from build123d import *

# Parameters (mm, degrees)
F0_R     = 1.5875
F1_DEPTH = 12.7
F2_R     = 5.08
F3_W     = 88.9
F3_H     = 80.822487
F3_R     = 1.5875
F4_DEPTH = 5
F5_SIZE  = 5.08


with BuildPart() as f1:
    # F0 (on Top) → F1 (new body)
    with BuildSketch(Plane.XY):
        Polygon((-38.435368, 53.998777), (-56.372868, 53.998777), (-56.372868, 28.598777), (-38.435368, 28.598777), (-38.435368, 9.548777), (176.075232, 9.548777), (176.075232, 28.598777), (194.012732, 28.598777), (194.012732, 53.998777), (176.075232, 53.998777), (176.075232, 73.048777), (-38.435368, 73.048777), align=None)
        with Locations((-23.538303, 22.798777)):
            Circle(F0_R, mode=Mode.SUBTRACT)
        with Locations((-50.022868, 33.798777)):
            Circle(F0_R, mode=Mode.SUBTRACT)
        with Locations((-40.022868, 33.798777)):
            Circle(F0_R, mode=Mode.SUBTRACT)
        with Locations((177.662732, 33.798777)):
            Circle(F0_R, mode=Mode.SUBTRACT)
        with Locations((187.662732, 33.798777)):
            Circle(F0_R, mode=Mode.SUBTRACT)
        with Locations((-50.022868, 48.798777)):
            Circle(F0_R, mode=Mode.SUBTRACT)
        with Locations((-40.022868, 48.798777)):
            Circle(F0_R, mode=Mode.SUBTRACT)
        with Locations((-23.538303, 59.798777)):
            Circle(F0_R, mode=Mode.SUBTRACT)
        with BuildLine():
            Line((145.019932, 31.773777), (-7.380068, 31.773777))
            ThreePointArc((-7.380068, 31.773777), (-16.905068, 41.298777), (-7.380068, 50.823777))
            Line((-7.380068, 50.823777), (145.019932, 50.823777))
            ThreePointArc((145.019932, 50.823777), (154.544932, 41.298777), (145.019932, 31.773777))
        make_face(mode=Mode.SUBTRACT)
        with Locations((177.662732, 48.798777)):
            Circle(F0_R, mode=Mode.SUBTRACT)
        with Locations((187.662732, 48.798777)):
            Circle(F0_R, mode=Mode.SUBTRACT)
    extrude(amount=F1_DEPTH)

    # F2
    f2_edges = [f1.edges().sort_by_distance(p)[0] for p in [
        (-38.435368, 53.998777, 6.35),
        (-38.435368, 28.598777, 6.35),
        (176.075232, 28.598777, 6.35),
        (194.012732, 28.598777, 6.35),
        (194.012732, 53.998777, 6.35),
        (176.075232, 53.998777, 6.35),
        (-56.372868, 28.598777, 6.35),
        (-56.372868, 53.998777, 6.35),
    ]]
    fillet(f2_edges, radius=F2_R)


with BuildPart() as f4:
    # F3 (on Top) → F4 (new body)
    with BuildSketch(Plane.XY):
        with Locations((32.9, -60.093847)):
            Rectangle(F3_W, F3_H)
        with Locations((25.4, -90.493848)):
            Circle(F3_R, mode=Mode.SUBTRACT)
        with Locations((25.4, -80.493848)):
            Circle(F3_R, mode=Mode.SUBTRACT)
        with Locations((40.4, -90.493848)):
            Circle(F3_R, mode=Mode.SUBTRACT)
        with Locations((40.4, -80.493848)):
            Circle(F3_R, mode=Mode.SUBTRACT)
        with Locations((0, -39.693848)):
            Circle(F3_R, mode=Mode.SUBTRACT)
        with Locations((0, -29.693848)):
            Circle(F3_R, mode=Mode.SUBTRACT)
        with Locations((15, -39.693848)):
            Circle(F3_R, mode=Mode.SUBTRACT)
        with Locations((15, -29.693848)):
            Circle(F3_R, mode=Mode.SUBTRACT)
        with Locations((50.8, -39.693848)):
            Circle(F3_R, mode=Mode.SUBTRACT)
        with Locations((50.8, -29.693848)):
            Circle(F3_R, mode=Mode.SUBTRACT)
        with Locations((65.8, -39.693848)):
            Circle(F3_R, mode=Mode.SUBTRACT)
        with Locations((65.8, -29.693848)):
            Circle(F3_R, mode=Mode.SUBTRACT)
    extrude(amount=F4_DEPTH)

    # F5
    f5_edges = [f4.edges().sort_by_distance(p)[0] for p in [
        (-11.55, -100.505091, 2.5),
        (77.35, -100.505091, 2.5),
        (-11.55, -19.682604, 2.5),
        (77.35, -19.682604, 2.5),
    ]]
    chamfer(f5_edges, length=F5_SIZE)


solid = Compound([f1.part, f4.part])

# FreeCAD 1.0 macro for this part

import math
import FreeCAD as App
import Part
import Sketcher
from FreeCAD import Vector
Q = App.Units.Quantity


def edges_at(feature, points):
    """Names of the edges that pass closest to the given points."""
    edges = feature.Shape.Edges
    near = lambda p: min(range(len(edges)), key=lambda i: edges[i].distToShape(Part.Vertex(*p))[0])
    return sorted({f"Edge{near(p) + 1}" for p in points})

doc = App.newDocument("Part")
body = doc.addObject("PartDesign::Body", "Body")

sketch1 = body.newObject("Sketcher::SketchObject", "Sketch")
sketch1.AttachmentSupport = (doc.getObject("XY_Plane"), [""])
sketch1.MapMode = "FlatFace"
sketch1.addGeometry([
    Part.LineSegment(Vector(-38.4, 54, 0), Vector(-56.4, 54, 0)),
    Part.LineSegment(Vector(-56.4, 54, 0), Vector(-56.4, 28.6, 0)),
    Part.LineSegment(Vector(-56.4, 28.6, 0), Vector(-38.4, 28.6, 0)),
    Part.LineSegment(Vector(-38.4, 28.6, 0), Vector(-38.4, 9.5, 0)),
    Part.LineSegment(Vector(-38.4, 9.5, 0), Vector(176.1, 9.5, 0)),
    Part.LineSegment(Vector(176.1, 9.5, 0), Vector(176.1, 28.6, 0)),
    Part.LineSegment(Vector(176.1, 28.6, 0), Vector(194, 28.6, 0)),
    Part.LineSegment(Vector(194, 28.6, 0), Vector(194, 54, 0)),
    Part.LineSegment(Vector(194, 54, 0), Vector(176.1, 54, 0)),
    Part.LineSegment(Vector(176.1, 54, 0), Vector(176.1, 73, 0)),
    Part.LineSegment(Vector(176.1, 73, 0), Vector(-38.4, 73, 0)),
    Part.LineSegment(Vector(-38.4, 73, 0), Vector(-38.4, 54, 0)),
    Part.Circle(Vector(-23.5, 22.8, 0), Vector(0, 0, 1), 1.6),
    Part.Circle(Vector(-50, 33.8, 0), Vector(0, 0, 1), 1.6),
    Part.Circle(Vector(-40, 33.8, 0), Vector(0, 0, 1), 1.6),
    Part.Circle(Vector(177.7, 33.8, 0), Vector(0, 0, 1), 1.6),
    Part.Circle(Vector(187.7, 33.8, 0), Vector(0, 0, 1), 1.6),
    Part.Circle(Vector(-50, 48.8, 0), Vector(0, 0, 1), 1.6),
    Part.Circle(Vector(-40, 48.8, 0), Vector(0, 0, 1), 1.6),
    Part.ArcOfCircle(Part.Circle(Vector(145, 41.3, 0), Vector(0, 0, 1), 9.5), math.radians(-90), math.radians(90)),
    Part.LineSegment(Vector(145, 31.8, 0), Vector(-7.4, 31.8, 0)),
    Part.ArcOfCircle(Part.Circle(Vector(-7.4, 41.3, 0), Vector(0, 0, 1), 9.5), math.radians(90), math.radians(270)),
    Part.LineSegment(Vector(-7.4, 50.8, 0), Vector(145, 50.8, 0)),
    Part.Circle(Vector(-23.5, 59.8, 0), Vector(0, 0, 1), 1.6),
    Part.Circle(Vector(177.7, 48.8, 0), Vector(0, 0, 1), 1.6),
    Part.Circle(Vector(187.7, 48.8, 0), Vector(0, 0, 1), 1.6),
], False)
sketch1.addConstraint([
    Sketcher.Constraint("Coincident", 0, 2, 1, 1),
    Sketcher.Constraint("Coincident", 1, 2, 2, 1),
    Sketcher.Constraint("Coincident", 2, 2, 3, 1),
    Sketcher.Constraint("Coincident", 3, 2, 4, 1),
    Sketcher.Constraint("Coincident", 4, 2, 5, 1),
    Sketcher.Constraint("Coincident", 5, 2, 6, 1),
    Sketcher.Constraint("Coincident", 6, 2, 7, 1),
    Sketcher.Constraint("Coincident", 7, 2, 8, 1),
    Sketcher.Constraint("Coincident", 8, 2, 9, 1),
    Sketcher.Constraint("Coincident", 9, 2, 10, 1),
    Sketcher.Constraint("Coincident", 10, 2, 11, 1),
    Sketcher.Constraint("Coincident", 11, 2, 0, 1),
    Sketcher.Constraint("Tangent", 19, 1, 20, 1),
    Sketcher.Constraint("Tangent", 20, 2, 21, 2),
    Sketcher.Constraint("Tangent", 21, 1, 22, 1),
    Sketcher.Constraint("Tangent", 22, 2, 19, 2),
    Sketcher.Constraint("Horizontal", 0),
    Sketcher.Constraint("Vertical", 1),
    Sketcher.Constraint("Horizontal", 2),
    Sketcher.Constraint("Vertical", 3),
    Sketcher.Constraint("Horizontal", 4),
    Sketcher.Constraint("Vertical", 5),
    Sketcher.Constraint("Horizontal", 6),
    Sketcher.Constraint("Vertical", 7),
    Sketcher.Constraint("Horizontal", 8),
    Sketcher.Constraint("Vertical", 9),
    Sketcher.Constraint("Horizontal", 10),
    Sketcher.Constraint("Vertical", 11),
    Sketcher.Constraint("Horizontal", 20),
    Sketcher.Constraint("Horizontal", 22),
    Sketcher.Constraint("Equal", 12, 13),
    Sketcher.Constraint("Equal", 13, 14),
    Sketcher.Constraint("Equal", 14, 15),
    Sketcher.Constraint("Equal", 15, 16),
    Sketcher.Constraint("Equal", 16, 17),
    Sketcher.Constraint("Equal", 17, 18),
    Sketcher.Constraint("Equal", 18, 23),
    Sketcher.Constraint("Equal", 23, 24),
    Sketcher.Constraint("Equal", 24, 25),
    Sketcher.Constraint("Horizontal", 13, 3, 14, 3),
    Sketcher.Constraint("Horizontal", 14, 3, 15, 3),
    Sketcher.Constraint("Horizontal", 15, 3, 16, 3),
    Sketcher.Constraint("Horizontal", 17, 3, 18, 3),
    Sketcher.Constraint("Horizontal", 18, 3, 24, 3),
    Sketcher.Constraint("Horizontal", 24, 3, 25, 3),
    Sketcher.Constraint("Horizontal", 2, 2, 5, 2),
    Sketcher.Constraint("Horizontal", 0, 2, 7, 2),
    Sketcher.Constraint("Vertical", 13, 3, 17, 3),
    Sketcher.Constraint("Vertical", 14, 3, 18, 3),
    Sketcher.Constraint("Vertical", 12, 3, 23, 3),
    Sketcher.Constraint("Vertical", 15, 3, 24, 3),
    Sketcher.Constraint("Vertical", 16, 3, 25, 3),
    Sketcher.Constraint("Vertical", 5, 2, 8, 2),
    Sketcher.Constraint("Vertical", 3, 2, 10, 2),
    Sketcher.Constraint("Equal", 2, 6),
    Sketcher.Constraint("Equal", 5, 9),
    Sketcher.Constraint("DistanceX", 20, 2, 20, 1, Q("6 in")),
    Sketcher.Constraint("DistanceY", 1, 2, 1, 1, Q("1 in")),
    Sketcher.Constraint("Diameter", 12, Q("0.125 in")),
    Sketcher.Constraint("Radius", 19, Q("0.375 in")),
    Sketcher.Constraint("DistanceY", 3, 2, 3, 1, Q("0.75 in")),
    Sketcher.Constraint("DistanceX", 0, 2, 17, 3, Q("0.25 in")),
    Sketcher.Constraint("DistanceY", 4, 2, 19, 3, Q("1.25 in")),
    Sketcher.Constraint("DistanceX", 16, 3, 6, 2, Q("0.25 in")),
    Sketcher.Constraint("DistanceX", 13, 3, 15, 3, Q("8.964 in")),
    Sketcher.Constraint("DistanceX", 14, 3, 16, 3, Q("8.964 in")),
    Sketcher.Constraint("DistanceX", 14, 3, 2, 2, Q("0.0625 in")),
    Sketcher.Constraint("DistanceX", 0, 2, 0, 1, 17.9375),
    Sketcher.Constraint("DistanceY", 12, 3, 13, 3, 11.0),
    Sketcher.Constraint("DistanceY", 13, 3, 17, 3, 15.0),
    Sketcher.Constraint("DistanceX", 19, 3, 15, 3, 32.6428),
    Sketcher.Constraint("DistanceY", 15, 3, 19, 3, 7.5),
    Sketcher.Constraint("DistanceY", 18, 3, 23, 3, 11.0),
    Sketcher.Constraint("DistanceX", 13, 3, -1, 1, 50.022868),
    Sketcher.Constraint("DistanceX", 12, 3, -1, 1, 23.538303),
    Sketcher.Constraint("DistanceY", -1, 1, 12, 3, 22.798777),
])
pad1 = body.newObject("PartDesign::Pad", "Pad")
pad1.Profile = sketch1
pad1.Length = Q("0.5 in")
doc.recompute()

fillet = body.newObject("PartDesign::Fillet", "Fillet")
fillet.Base = (pad1, edges_at(pad1, [
    (-38.435, 53.999, 6.35),
    (-38.435, 28.599, 6.35),
    (176.075, 28.599, 6.35),
    (194.013, 28.599, 6.35),
    (194.013, 53.999, 6.35),
    (176.075, 53.999, 6.35),
    (-56.373, 28.599, 6.35),
    (-56.373, 53.999, 6.35),
]))
fillet.Radius = Q("0.2 in")
body2 = doc.addObject("PartDesign::Body", "Body001")

sketch2 = body2.newObject("Sketcher::SketchObject", "Sketch001")
sketch2.AttachmentSupport = (doc.getObject("XY_Plane001"), [""])
sketch2.MapMode = "FlatFace"
sketch2.addGeometry([
    Part.LineSegment(Vector(-11.6, -19.7, 0), Vector(-11.6, -100.5, 0)),
    Part.LineSegment(Vector(-11.6, -100.5, 0), Vector(77.3, -100.5, 0)),
    Part.LineSegment(Vector(77.3, -100.5, 0), Vector(77.3, -19.7, 0)),
    Part.LineSegment(Vector(77.3, -19.7, 0), Vector(-11.6, -19.7, 0)),
    Part.Circle(Vector(25.4, -90.5, 0), Vector(0, 0, 1), 1.6),
    Part.Circle(Vector(25.4, -80.5, 0), Vector(0, 0, 1), 1.6),
    Part.Circle(Vector(40.4, -90.5, 0), Vector(0, 0, 1), 1.6),
    Part.Circle(Vector(40.4, -80.5, 0), Vector(0, 0, 1), 1.6),
    Part.Circle(Vector(0, -39.7, 0), Vector(0, 0, 1), 1.6),
    Part.Circle(Vector(15, -39.7, 0), Vector(0, 0, 1), 1.6),
    Part.Circle(Vector(0, -29.7, 0), Vector(0, 0, 1), 1.6),
    Part.Circle(Vector(15, -29.7, 0), Vector(0, 0, 1), 1.6),
    Part.Circle(Vector(50.8, -39.7, 0), Vector(0, 0, 1), 1.6),
    Part.Circle(Vector(65.8, -39.7, 0), Vector(0, 0, 1), 1.6),
    Part.Circle(Vector(50.8, -29.7, 0), Vector(0, 0, 1), 1.6),
    Part.Circle(Vector(65.8, -29.7, 0), Vector(0, 0, 1), 1.6),
], False)
sketch2.addConstraint([
    Sketcher.Constraint("Coincident", 0, 2, 1, 1),
    Sketcher.Constraint("Coincident", 1, 2, 2, 1),
    Sketcher.Constraint("Coincident", 2, 2, 3, 1),
    Sketcher.Constraint("Coincident", 3, 2, 0, 1),
    Sketcher.Constraint("Vertical", 0),
    Sketcher.Constraint("Horizontal", 1),
    Sketcher.Constraint("Vertical", 2),
    Sketcher.Constraint("Horizontal", 3),
    Sketcher.Constraint("Equal", 4, 5),
    Sketcher.Constraint("Equal", 5, 6),
    Sketcher.Constraint("Equal", 6, 7),
    Sketcher.Constraint("Equal", 7, 8),
    Sketcher.Constraint("Equal", 8, 9),
    Sketcher.Constraint("Equal", 9, 10),
    Sketcher.Constraint("Equal", 10, 11),
    Sketcher.Constraint("Equal", 11, 12),
    Sketcher.Constraint("Equal", 12, 13),
    Sketcher.Constraint("Equal", 13, 14),
    Sketcher.Constraint("Equal", 14, 15),
    Sketcher.Constraint("PointOnObject", 8, 3, -2),
    Sketcher.Constraint("PointOnObject", 10, 3, -2),
    Sketcher.Constraint("Horizontal", 4, 3, 6, 3),
    Sketcher.Constraint("Horizontal", 5, 3, 7, 3),
    Sketcher.Constraint("Horizontal", 8, 3, 9, 3),
    Sketcher.Constraint("Horizontal", 10, 3, 11, 3),
    Sketcher.Constraint("Horizontal", 9, 3, 12, 3),
    Sketcher.Constraint("Horizontal", 12, 3, 13, 3),
    Sketcher.Constraint("Horizontal", 11, 3, 14, 3),
    Sketcher.Constraint("Horizontal", 14, 3, 15, 3),
    Sketcher.Constraint("Vertical", 4, 3, 5, 3),
    Sketcher.Constraint("Vertical", 6, 3, 7, 3),
    Sketcher.Constraint("Vertical", 9, 3, 11, 3),
    Sketcher.Constraint("Vertical", 12, 3, 14, 3),
    Sketcher.Constraint("Vertical", 13, 3, 15, 3),
    Sketcher.Constraint("Diameter", 4, Q("0.125 in")),
    Sketcher.Constraint("DistanceX", 1, 1, 1, 2, Q("3.5 in")),
    Sketcher.Constraint("DistanceX", -1, 1, 4, 3, Q("1 in")),
    Sketcher.Constraint("DistanceX", -1, 1, 12, 3, Q("2 in")),
    Sketcher.Constraint("DistanceY", 4, 3, 8, 3, Q("2 in")),
    Sketcher.Constraint("DistanceX", 9, 3, 7, 3, Q("1 in")),
    Sketcher.Constraint("DistanceY", 5, 3, 10, 3, Q("2 in")),
    Sketcher.Constraint("DistanceX", 7, 3, 13, 3, Q("1 in")),
    Sketcher.Constraint("DistanceX", -1, 1, 6, 3, 40.4),
    Sketcher.Constraint("DistanceX", 0, 2, -1, 1, 11.55),
    Sketcher.Constraint("DistanceY", 4, 3, 5, 3, 10.0),
    Sketcher.Constraint("DistanceY", 0, 2, 0, 1, 80.822487),
    Sketcher.Constraint("DistanceY", 4, 3, -1, 1, 90.493848),
    Sketcher.Constraint("DistanceY", 0, 2, -1, 1, 100.50509),
])
pad2 = body2.newObject("PartDesign::Pad", "Pad001")
pad2.Profile = sketch2
pad2.Length = 5
doc.recompute()

chamfer = body2.newObject("PartDesign::Chamfer", "Chamfer")
chamfer.Base = (pad2, edges_at(pad2, [
    (-11.55, -100.505, 2.5),
    (77.35, -100.505, 2.5),
    (-11.55, -19.683, 2.5),
    (77.35, -19.683, 2.5),
]))
chamfer.Size = Q("0.2 in")

doc.recompute()
